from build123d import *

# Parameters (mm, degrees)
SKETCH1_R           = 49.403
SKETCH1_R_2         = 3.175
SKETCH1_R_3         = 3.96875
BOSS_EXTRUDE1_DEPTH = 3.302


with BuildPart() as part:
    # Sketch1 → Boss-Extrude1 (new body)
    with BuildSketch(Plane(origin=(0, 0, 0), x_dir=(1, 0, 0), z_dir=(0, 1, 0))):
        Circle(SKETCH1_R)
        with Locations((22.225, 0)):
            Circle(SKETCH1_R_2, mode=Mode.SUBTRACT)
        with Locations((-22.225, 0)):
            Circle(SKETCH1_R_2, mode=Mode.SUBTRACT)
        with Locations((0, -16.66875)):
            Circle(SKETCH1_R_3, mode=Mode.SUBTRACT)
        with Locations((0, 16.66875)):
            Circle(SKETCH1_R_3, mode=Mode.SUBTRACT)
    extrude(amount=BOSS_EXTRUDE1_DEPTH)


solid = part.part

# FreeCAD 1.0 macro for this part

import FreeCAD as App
import Part
import Sketcher
Q = App.Units.Quantity

doc = App.newDocument("Part")
body = doc.addObject("PartDesign::Body", "Body")

# Sketch on XZ plane
sketch1 = body.newObject("Sketcher::SketchObject", "Sketch")
sketch1.AttachmentSupport = (doc.getObject("XZ_Plane"), [""])
sketch1.MapMode = "FlatFace"
sketch1.addGeometry(Part.Circle(App.Vector(0, 0, 0), App.Vector(0, 0, 1), 49.4), False)
sketch1.addGeometry(Part.Circle(App.Vector(0, 16.7, 0), App.Vector(0, 0, 1), 4), False)
sketch1.addGeometry(Part.Circle(App.Vector(-22.2, 0, 0), App.Vector(0, 0, 1), 3.2), False)
sketch1.addGeometry(Part.Circle(App.Vector(22.2, 0, 0), App.Vector(0, 0, 1), 3.2), False)
sketch1.addGeometry(Part.Circle(App.Vector(0, -16.7, 0), App.Vector(0, 0, 1), 4), False)
sketch1.addConstraint(Sketcher.Constraint("Coincident", 0, 3, -1, 1))
sketch1.addConstraint(Sketcher.Constraint("Equal", 2, 3))
sketch1.addConstraint(Sketcher.Constraint("Equal", 1, 4))
sketch1.addConstraint(Sketcher.Constraint("Symmetric", 2, 3, 3, 3, -1, 1))
sketch1.addConstraint(Sketcher.Constraint("Symmetric", 1, 3, 4, 3, -1, 1))
sketch1.addConstraint(Sketcher.Constraint("PointOnObject", 1, 3, -2))
sketch1.addConstraint(Sketcher.Constraint("PointOnObject", 2, 3, -1))
sketch1.addConstraint(Sketcher.Constraint("Diameter", 0, Q("3.89 in")))
sketch1.addConstraint(Sketcher.Constraint("Diameter", 2, Q("0.25 in")))
sketch1.addConstraint(Sketcher.Constraint("Diameter", 1, Q("0.3125 in")))
sketch1.addConstraint(Sketcher.Constraint("DistanceX", 2, 3, 3, 3, Q("1.75 in")))
sketch1.addConstraint(Sketcher.Constraint("DistanceY", -1, 1, 1, 3, Q("0.65625 in")))
pad1 = body.newObject("PartDesign::Pad", "Pad")
pad1.Profile = sketch1
pad1.Length = Q("0.13 in")
pad1.Reversed = True

doc.recompute()
